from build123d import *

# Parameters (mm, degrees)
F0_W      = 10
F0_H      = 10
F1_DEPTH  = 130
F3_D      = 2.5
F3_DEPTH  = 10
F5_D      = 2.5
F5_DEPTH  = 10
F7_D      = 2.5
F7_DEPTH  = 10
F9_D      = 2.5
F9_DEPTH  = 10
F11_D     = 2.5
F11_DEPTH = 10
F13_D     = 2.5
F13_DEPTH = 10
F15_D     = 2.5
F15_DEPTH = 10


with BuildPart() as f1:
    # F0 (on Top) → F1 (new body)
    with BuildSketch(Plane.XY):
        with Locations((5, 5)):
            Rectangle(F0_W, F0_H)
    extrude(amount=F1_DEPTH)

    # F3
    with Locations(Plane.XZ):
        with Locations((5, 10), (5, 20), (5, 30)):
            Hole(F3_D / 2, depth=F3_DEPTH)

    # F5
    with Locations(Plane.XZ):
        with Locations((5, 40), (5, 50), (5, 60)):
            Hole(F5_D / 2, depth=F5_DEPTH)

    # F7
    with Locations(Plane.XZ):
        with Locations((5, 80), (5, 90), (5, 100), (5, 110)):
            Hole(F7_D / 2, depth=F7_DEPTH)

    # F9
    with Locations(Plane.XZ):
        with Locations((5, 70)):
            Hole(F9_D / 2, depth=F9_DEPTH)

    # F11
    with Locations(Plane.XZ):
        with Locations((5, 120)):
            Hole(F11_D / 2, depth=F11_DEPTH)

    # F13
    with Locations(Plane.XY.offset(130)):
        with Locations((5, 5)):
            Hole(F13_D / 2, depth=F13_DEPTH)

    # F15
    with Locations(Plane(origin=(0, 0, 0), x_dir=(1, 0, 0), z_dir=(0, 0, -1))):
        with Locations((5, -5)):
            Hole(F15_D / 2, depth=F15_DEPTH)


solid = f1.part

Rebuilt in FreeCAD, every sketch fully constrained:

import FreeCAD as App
import Part
import Sketcher

doc = App.newDocument("Part")
body = doc.addObject("PartDesign::Body", "Body")

sketch1 = body.newObject("Sketcher::SketchObject", "Sketch")
sketch1.AttachmentSupport = (doc.getObject("XY_Plane"), [""])
sketch1.MapMode = "FlatFace"
sketch1.addGeometry(Part.LineSegment(App.Vector(0, 10, 0), App.Vector(0, 0, 0)), False)
sketch1.addGeometry(Part.LineSegment(App.Vector(0, 0, 0), App.Vector(10, 0, 0)), False)
sketch1.addGeometry(Part.LineSegment(App.Vector(10, 0, 0), App.Vector(10, 10, 0)), False)
sketch1.addGeometry(Part.LineSegment(App.Vector(10, 10, 0), App.Vector(0, 10, 0)), False)
sketch1.addConstraint(Sketcher.Constraint("Coincident", 0, 2, 1, 1))
sketch1.addConstraint(Sketcher.Constraint("Coincident", 1, 2, 2, 1))
sketch1.addConstraint(Sketcher.Constraint("Coincident", 2, 2, 3, 1))
sketch1.addConstraint(Sketcher.Constraint("Coincident", 3, 2, 0, 1))
sketch1.addConstraint(Sketcher.Constraint("Vertical", 0))
sketch1.addConstraint(Sketcher.Constraint("Horizontal", 1))
sketch1.addConstraint(Sketcher.Constraint("Vertical", 2))
sketch1.addConstraint(Sketcher.Constraint("Horizontal", 3))
sketch1.addConstraint(Sketcher.Constraint("Coincident", 0, 2, -1, 1))
sketch1.addConstraint(Sketcher.Constraint("Equal", 3, 0))
sketch1.addConstraint(Sketcher.Constraint("DistanceX", 1, 1, 1, 2, 10.0))
pad1 = body.newObject("PartDesign::Pad", "Pad")
pad1.Profile = sketch1
pad1.Length = 130

sketch2 = body.newObject("Sketcher::SketchObject", "Sketch001")
sketch2.AttachmentSupport = (doc.getObject("XZ_Plane"), [""])
sketch2.MapMode = "FlatFace"
sketch2.addGeometry(Part.Circle(App.Vector(5, 10, 0), App.Vector(0, 0, 1), 1.2), False)
sketch2.addGeometry(Part.Circle(App.Vector(5, 20, 0), App.Vector(0, 0, 1), 1.2), False)
sketch2.addGeometry(Part.Circle(App.Vector(5, 30, 0), App.Vector(0, 0, 1), 1.2), False)
sketch2.addConstraint(Sketcher.Constraint("Equal", 0, 1))
sketch2.addConstraint(Sketcher.Constraint("Equal", 1, 2))
sketch2.addConstraint(Sketcher.Constraint("Vertical", 0, 3, 1, 3))
sketch2.addConstraint(Sketcher.Constraint("Vertical", 1, 3, 2, 3))
sketch2.addConstraint(Sketcher.Constraint("Diameter", 0, 2.5))
sketch2.addConstraint(Sketcher.Constraint("DistanceX", -1, 1, 0, 3, 5.0))
sketch2.addConstraint(Sketcher.Constraint("DistanceY", -1, 1, 0, 3, 10.0))
sketch2.addConstraint(Sketcher.Constraint("DistanceY", -1, 1, 1, 3, 20.0))
sketch2.addConstraint(Sketcher.Constraint("DistanceY", -1, 1, 2, 3, 30.0))
doc.recompute()
hole = body.newObject("PartDesign::Hole", "Hole")
hole.Profile = sketch2
hole.ThreadType = "None"
hole.Diameter = 2.5
hole.DepthType = "Dimension"
hole.Depth = 10
hole.DrillPoint = "Flat"

sketch3 = body.newObject("Sketcher::SketchObject", "Sketch002")
sketch3.AttachmentSupport = (doc.getObject("XZ_Plane"), [""])
sketch3.MapMode = "FlatFace"
sketch3.addGeometry(Part.Circle(App.Vector(5, 40, 0), App.Vector(0, 0, 1), 1.2), False)
sketch3.addGeometry(Part.Circle(App.Vector(5, 50, 0), App.Vector(0, 0, 1), 1.2), False)
sketch3.addGeometry(Part.Circle(App.Vector(5, 60, 0), App.Vector(0, 0, 1), 1.2), False)
sketch3.addConstraint(Sketcher.Constraint("Equal", 0, 1))
sketch3.addConstraint(Sketcher.Constraint("Equal", 1, 2))
sketch3.addConstraint(Sketcher.Constraint("Vertical", 0, 3, 1, 3))
sketch3.addConstraint(Sketcher.Constraint("Vertical", 1, 3, 2, 3))
sketch3.addConstraint(Sketcher.Constraint("Diameter", 0, 2.5))
sketch3.addConstraint(Sketcher.Constraint("DistanceX", -1, 1, 0, 3, 5.0))
sketch3.addConstraint(Sketcher.Constraint("DistanceY", -1, 1, 0, 3, 40.0))
sketch3.addConstraint(Sketcher.Constraint("DistanceY", -1, 1, 1, 3, 50.0))
sketch3.addConstraint(Sketcher.Constraint("DistanceY", -1, 1, 2, 3, 60.0))
doc.recompute()
hole2 = body.newObject("PartDesign::Hole", "Hole001")
hole2.Profile = sketch3
hole2.ThreadType = "None"
hole2.Diameter = 2.5
hole2.DepthType = "Dimension"
hole2.Depth = 10
hole2.DrillPoint = "Flat"

sketch4 = body.newObject("Sketcher::SketchObject", "Sketch003")
sketch4.AttachmentSupport = (doc.getObject("XZ_Plane"), [""])
sketch4.MapMode = "FlatFace"
sketch4.addGeometry(Part.Circle(App.Vector(5, 80, 0), App.Vector(0, 0, 1), 1.2), False)
sketch4.addGeometry(Part.Circle(App.Vector(5, 90, 0), App.Vector(0, 0, 1), 1.2), False)
sketch4.addGeometry(Part.Circle(App.Vector(5, 100, 0), App.Vector(0, 0, 1), 1.2), False)
sketch4.addGeometry(Part.Circle(App.Vector(5, 110, 0), App.Vector(0, 0, 1), 1.2), False)
sketch4.addConstraint(Sketcher.Constraint("Equal", 0, 1))
sketch4.addConstraint(Sketcher.Constraint("Equal", 1, 2))
sketch4.addConstraint(Sketcher.Constraint("Equal", 2, 3))
sketch4.addConstraint(Sketcher.Constraint("Vertical", 0, 3, 1, 3))
sketch4.addConstraint(Sketcher.Constraint("Vertical", 1, 3, 2, 3))
sketch4.addConstraint(Sketcher.Constraint("Vertical", 2, 3, 3, 3))
sketch4.addConstraint(Sketcher.Constraint("Diameter", 0, 2.5))
sketch4.addConstraint(Sketcher.Constraint("DistanceX", -1, 1, 0, 3, 5.0))
sketch4.addConstraint(Sketcher.Constraint("DistanceY", -1, 1, 0, 3, 80.0))
sketch4.addConstraint(Sketcher.Constraint("DistanceY", -1, 1, 1, 3, 90.0))
sketch4.addConstraint(Sketcher.Constraint("DistanceY", -1, 1, 2, 3, 100.0))
sketch4.addConstraint(Sketcher.Constraint("DistanceY", -1, 1, 3, 3, 110.0))
doc.recompute()
hole3 = body.newObject("PartDesign::Hole", "Hole002")
hole3.Profile = sketch4
hole3.ThreadType = "None"
hole3.Diameter = 2.5
hole3.DepthType = "Dimension"
hole3.Depth = 10
hole3.DrillPoint = "Flat"

sketch5 = body.newObject("Sketcher::SketchObject", "Sketch004")
sketch5.AttachmentSupport = (doc.getObject("XZ_Plane"), [""])
sketch5.MapMode = "FlatFace"
sketch5.addGeometry(Part.Circle(App.Vector(5, 70, 0), App.Vector(0, 0, 1), 1.2), False)
sketch5.addConstraint(Sketcher.Constraint("Diameter", 0, 2.5))
sketch5.addConstraint(Sketcher.Constraint("DistanceX", -1, 1, 0, 3, 5.0))
sketch5.addConstraint(Sketcher.Constraint("DistanceY", -1, 1, 0, 3, 70.0))
doc.recompute()
hole4 = body.newObject("PartDesign::Hole", "Hole003")
hole4.Profile = sketch5
hole4.ThreadType = "None"
hole4.Diameter = 2.5
hole4.DepthType = "Dimension"
hole4.Depth = 10
hole4.DrillPoint = "Flat"

sketch6 = body.newObject("Sketcher::SketchObject", "Sketch005")
sketch6.AttachmentSupport = (doc.getObject("XZ_Plane"), [""])
sketch6.MapMode = "FlatFace"
sketch6.addGeometry(Part.Circle(App.Vector(5, 120, 0), App.Vector(0, 0, 1), 1.2), False)
sketch6.addConstraint(Sketcher.Constraint("Diameter", 0, 2.5))
sketch6.addConstraint(Sketcher.Constraint("DistanceX", -1, 1, 0, 3, 5.0))
sketch6.addConstraint(Sketcher.Constraint("DistanceY", -1, 1, 0, 3, 120.0))
doc.recompute()
hole5 = body.newObject("PartDesign::Hole", "Hole004")
hole5.Profile = sketch6
hole5.ThreadType = "None"
hole5.Diameter = 2.5
hole5.DepthType = "Dimension"
hole5.Depth = 10
hole5.DrillPoint = "Flat"

sketch7 = body.newObject("Sketcher::SketchObject", "Sketch006")
sketch7.AttachmentSupport = (doc.getObject("XY_Plane"), [""])
sketch7.MapMode = "FlatFace"
sketch7.AttachmentOffset = App.Placement(App.Vector(0, 0, 130), App.Rotation())
sketch7.addGeometry(Part.Circle(App.Vector(5, 5, 0), App.Vector(0, 0, 1), 1.2), False)
sketch7.addConstraint(Sketcher.Constraint("Diameter", 0, 2.5))
sketch7.addConstraint(Sketcher.Constraint("DistanceX", -1, 1, 0, 3, 5.0))
sketch7.addConstraint(Sketcher.Constraint("DistanceY", -1, 1, 0, 3, 5.0))
doc.recompute()
hole6 = body.newObject("PartDesign::Hole", "Hole005")
hole6.Profile = sketch7
hole6.ThreadType = "None"
hole6.Diameter = 2.5
hole6.DepthType = "Dimension"
hole6.Depth = 10
hole6.DrillPoint = "Flat"

sketch8 = body.newObject("Sketcher::SketchObject", "Sketch007")
sketch8.AttachmentSupport = (doc.getObject("XY_Plane"), [""])
sketch8.MapMode = "FlatFace"
sketch8.addGeometry(Part.Circle(App.Vector(5, 5, 0), App.Vector(0, 0, 1), 1.2), False)
sketch8.addConstraint(Sketcher.Constraint("Diameter", 0, 2.5))
sketch8.addConstraint(Sketcher.Constraint("DistanceX", -1, 1, 0, 3, 5.0))
sketch8.addConstraint(Sketcher.Constraint("DistanceY", -1, 1, 0, 3, 5.0))
doc.recompute()
hole7 = body.newObject("PartDesign::Hole", "Hole006")
hole7.Profile = sketch8
hole7.ThreadType = "None"
hole7.Diameter = 2.5
hole7.DepthType = "Dimension"
hole7.Depth = 10
hole7.DrillPoint = "Flat"
hole7.Reversed = True

doc.recompute()
